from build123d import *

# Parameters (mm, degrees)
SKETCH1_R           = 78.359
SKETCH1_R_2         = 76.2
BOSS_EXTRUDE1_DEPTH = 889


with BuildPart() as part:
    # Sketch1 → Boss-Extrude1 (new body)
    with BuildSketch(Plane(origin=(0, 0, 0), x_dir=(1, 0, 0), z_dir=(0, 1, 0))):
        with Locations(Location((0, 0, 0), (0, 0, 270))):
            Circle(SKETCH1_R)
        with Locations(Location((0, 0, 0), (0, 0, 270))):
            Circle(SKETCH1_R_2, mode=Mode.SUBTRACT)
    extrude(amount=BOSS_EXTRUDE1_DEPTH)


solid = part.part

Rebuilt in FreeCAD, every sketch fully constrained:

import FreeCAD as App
import Part
import Sketcher
from FreeCAD import Vector
Q = App.Units.Quantity

doc = App.newDocument("Part")
body = doc.addObject("PartDesign::Body", "Body")

# Sketch on XZ plane
sketch1 = doc.addObject("Sketcher::SketchObject", "Sketch")
body.addObject(sketch1)
sketch1.AttachmentSupport = (doc.XZ_Plane, [""])
sketch1.MapMode = "FlatFace"
sketch1.addGeometry([
    Part.Circle(Vector(0, 0, 0), Vector(0, 0, 1), 78),
    Part.Circle(Vector(0, 0, 0), Vector(0, 0, 1), 76),
], False)
sketch1.addConstraint([
    Sketcher.Constraint("Coincident", 0, 3, -1, 1),
    Sketcher.Constraint("Coincident", 1, 3, -1, 1),
    Sketcher.Constraint("Diameter", 1, Q("6 in")),
    Sketcher.Constraint("Diameter", 0, Q("6.17 in")),
])
pad1 = doc.addObject("PartDesign::Pad", "Pad")
body.addObject(pad1)
pad1.Profile = sketch1
pad1.Length = Q("35 in")
pad1.Reversed = True

doc.recompute()
